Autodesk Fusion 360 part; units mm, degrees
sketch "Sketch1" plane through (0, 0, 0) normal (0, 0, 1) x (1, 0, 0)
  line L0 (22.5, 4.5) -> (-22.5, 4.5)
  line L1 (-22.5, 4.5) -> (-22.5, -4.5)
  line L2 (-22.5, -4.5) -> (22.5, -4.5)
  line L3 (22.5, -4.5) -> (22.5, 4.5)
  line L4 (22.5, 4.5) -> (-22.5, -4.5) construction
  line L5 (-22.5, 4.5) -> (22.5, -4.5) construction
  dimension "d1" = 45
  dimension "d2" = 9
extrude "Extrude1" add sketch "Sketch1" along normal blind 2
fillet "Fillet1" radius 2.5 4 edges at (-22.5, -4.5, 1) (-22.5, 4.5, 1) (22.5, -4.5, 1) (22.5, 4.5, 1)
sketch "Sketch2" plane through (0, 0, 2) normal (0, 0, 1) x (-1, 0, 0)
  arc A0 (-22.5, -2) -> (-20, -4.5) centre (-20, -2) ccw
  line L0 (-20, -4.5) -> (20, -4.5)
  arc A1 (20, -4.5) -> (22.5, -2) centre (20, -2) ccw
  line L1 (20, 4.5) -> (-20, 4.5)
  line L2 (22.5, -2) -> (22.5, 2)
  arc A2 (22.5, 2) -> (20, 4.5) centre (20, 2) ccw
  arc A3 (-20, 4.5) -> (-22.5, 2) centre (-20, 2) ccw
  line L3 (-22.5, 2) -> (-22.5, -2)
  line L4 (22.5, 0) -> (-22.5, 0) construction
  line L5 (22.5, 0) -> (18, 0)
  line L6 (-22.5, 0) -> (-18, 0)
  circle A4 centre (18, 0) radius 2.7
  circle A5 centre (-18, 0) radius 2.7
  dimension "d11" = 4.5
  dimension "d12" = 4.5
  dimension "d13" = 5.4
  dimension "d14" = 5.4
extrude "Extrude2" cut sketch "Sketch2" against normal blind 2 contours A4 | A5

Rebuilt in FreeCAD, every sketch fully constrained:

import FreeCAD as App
import Part
import Sketcher

V = App.Vector
Q = App.Units.Quantity


def edges_at(feature, points):
    """Names of the edges that pass closest to the given points."""
    edges = feature.Shape.Edges
    near = lambda p: min(range(len(edges)), key=lambda i: edges[i].distToShape(Part.Vertex(*p))[0])
    return sorted({f"Edge{near(p) + 1}" for p in points})


def add_polygon(sketch, points):
    """Adds a closed chain of lines whose ends are joined by coincident constraints."""
    first, n = sketch.GeometryCount, len(points)
    for a, b in zip(points, points[1:] + points[:1]):
        sketch.addGeometry(Part.LineSegment(App.Vector(*a, 0), App.Vector(*b, 0)), False)
    for i in range(n):
        sketch.addConstraint(Sketcher.Constraint("Coincident", first + i, 2, first + (i + 1) % n, 1))

doc = App.newDocument("Part")
params = doc.addObject("Spreadsheet::Sheet", "Params")
for row, (alias, value) in enumerate([
    ("sketch1_width", "45 mm"),
    ("sketch1_height", "9 mm"),
    ("pad1_length", "2 mm"),
    ("fillet_radius", "2.5 mm"),
    ("sketch2_diameter", "5.4 mm"),
    ("pocket1_length", "2 mm"),
], start=1):
    params.set(f"A{row}", alias)
    params.set(f"B{row}", "=" + value)
    params.setAlias(f"B{row}", alias)

body = doc.addObject("PartDesign::Body", "Body")

# Sketch on XY plane
sketch1 = body.newObject("Sketcher::SketchObject", "Sketch")
sketch1.AttachmentSupport = (doc.getObject("XY_Plane"), [""])
sketch1.MapMode = "FlatFace"
add_polygon(sketch1, [(22, -4), (22, 4), (-22, 4), (-22, -4)])  # lines 0-3
sketch1.addConstraint(Sketcher.Constraint("Vertical", 0))
sketch1.addConstraint(Sketcher.Constraint("Horizontal", 1))
sketch1.addConstraint(Sketcher.Constraint("Vertical", 2))
sketch1.addConstraint(Sketcher.Constraint("Horizontal", 3))
sketch1.addConstraint(Sketcher.Constraint("Symmetric", 0, 2, 2, 2, -1, 1))
sketch1.addConstraint(Sketcher.Constraint("DistanceX", 1, 2, 1, 1, Q("45 mm")))
sketch1.addConstraint(Sketcher.Constraint("DistanceY", 0, 1, 0, 2, Q("9 mm")))
sketch1.setExpression("Constraints[9]", "Params.sketch1_width")
sketch1.setExpression("Constraints[10]", "Params.sketch1_height")
pad1 = body.newObject("PartDesign::Pad", "Pad")
pad1.Profile = sketch1
pad1.setExpression("Length", "Params.pad1_length")
doc.recompute()

fillet = body.newObject("PartDesign::Fillet", "Fillet")
fillet.Base = (pad1, edges_at(pad1, [
    (-22.5, -4.5, 1),
    (-22.5, 4.5, 1),
    (22.5, -4.5, 1),
    (22.5, 4.5, 1),
]))
fillet.setExpression("Radius", "Params.fillet_radius")

# Sketch on XY plane
sketch2 = body.newObject("Sketcher::SketchObject", "Sketch001")
sketch2.AttachmentSupport = (doc.getObject("XY_Plane"), [""])
sketch2.MapMode = "FlatFace"
sketch2.AttachmentOffset = App.Placement(V(0, 0, 2), App.Rotation())
sketch2.addGeometry(Part.Circle(V(-18, 0, 0), V(0, 0, 1), 2.7), False)
sketch2.addGeometry(Part.Circle(V(18, 0, 0), V(0, 0, 1), 2.7), False)
sketch2.addConstraint(Sketcher.Constraint("Equal", 0, 1))
sketch2.addConstraint(Sketcher.Constraint("Symmetric", 0, 3, 1, 3, -1, 1))
sketch2.addConstraint(Sketcher.Constraint("PointOnObject", 0, 3, -1))
sketch2.addConstraint(Sketcher.Constraint("Diameter", 0, Q("5.4 mm")))
sketch2.addConstraint(Sketcher.Constraint("DistanceX", 0, 3, -1, 1, Q("18 mm")))
sketch2.setExpression("Constraints[3]", "Params.sketch2_diameter")
pocket1 = body.newObject("PartDesign::Pocket", "Pocket")
pocket1.Profile = sketch2
pocket1.setExpression("Length", "Params.pocket1_length")

doc.recompute()
